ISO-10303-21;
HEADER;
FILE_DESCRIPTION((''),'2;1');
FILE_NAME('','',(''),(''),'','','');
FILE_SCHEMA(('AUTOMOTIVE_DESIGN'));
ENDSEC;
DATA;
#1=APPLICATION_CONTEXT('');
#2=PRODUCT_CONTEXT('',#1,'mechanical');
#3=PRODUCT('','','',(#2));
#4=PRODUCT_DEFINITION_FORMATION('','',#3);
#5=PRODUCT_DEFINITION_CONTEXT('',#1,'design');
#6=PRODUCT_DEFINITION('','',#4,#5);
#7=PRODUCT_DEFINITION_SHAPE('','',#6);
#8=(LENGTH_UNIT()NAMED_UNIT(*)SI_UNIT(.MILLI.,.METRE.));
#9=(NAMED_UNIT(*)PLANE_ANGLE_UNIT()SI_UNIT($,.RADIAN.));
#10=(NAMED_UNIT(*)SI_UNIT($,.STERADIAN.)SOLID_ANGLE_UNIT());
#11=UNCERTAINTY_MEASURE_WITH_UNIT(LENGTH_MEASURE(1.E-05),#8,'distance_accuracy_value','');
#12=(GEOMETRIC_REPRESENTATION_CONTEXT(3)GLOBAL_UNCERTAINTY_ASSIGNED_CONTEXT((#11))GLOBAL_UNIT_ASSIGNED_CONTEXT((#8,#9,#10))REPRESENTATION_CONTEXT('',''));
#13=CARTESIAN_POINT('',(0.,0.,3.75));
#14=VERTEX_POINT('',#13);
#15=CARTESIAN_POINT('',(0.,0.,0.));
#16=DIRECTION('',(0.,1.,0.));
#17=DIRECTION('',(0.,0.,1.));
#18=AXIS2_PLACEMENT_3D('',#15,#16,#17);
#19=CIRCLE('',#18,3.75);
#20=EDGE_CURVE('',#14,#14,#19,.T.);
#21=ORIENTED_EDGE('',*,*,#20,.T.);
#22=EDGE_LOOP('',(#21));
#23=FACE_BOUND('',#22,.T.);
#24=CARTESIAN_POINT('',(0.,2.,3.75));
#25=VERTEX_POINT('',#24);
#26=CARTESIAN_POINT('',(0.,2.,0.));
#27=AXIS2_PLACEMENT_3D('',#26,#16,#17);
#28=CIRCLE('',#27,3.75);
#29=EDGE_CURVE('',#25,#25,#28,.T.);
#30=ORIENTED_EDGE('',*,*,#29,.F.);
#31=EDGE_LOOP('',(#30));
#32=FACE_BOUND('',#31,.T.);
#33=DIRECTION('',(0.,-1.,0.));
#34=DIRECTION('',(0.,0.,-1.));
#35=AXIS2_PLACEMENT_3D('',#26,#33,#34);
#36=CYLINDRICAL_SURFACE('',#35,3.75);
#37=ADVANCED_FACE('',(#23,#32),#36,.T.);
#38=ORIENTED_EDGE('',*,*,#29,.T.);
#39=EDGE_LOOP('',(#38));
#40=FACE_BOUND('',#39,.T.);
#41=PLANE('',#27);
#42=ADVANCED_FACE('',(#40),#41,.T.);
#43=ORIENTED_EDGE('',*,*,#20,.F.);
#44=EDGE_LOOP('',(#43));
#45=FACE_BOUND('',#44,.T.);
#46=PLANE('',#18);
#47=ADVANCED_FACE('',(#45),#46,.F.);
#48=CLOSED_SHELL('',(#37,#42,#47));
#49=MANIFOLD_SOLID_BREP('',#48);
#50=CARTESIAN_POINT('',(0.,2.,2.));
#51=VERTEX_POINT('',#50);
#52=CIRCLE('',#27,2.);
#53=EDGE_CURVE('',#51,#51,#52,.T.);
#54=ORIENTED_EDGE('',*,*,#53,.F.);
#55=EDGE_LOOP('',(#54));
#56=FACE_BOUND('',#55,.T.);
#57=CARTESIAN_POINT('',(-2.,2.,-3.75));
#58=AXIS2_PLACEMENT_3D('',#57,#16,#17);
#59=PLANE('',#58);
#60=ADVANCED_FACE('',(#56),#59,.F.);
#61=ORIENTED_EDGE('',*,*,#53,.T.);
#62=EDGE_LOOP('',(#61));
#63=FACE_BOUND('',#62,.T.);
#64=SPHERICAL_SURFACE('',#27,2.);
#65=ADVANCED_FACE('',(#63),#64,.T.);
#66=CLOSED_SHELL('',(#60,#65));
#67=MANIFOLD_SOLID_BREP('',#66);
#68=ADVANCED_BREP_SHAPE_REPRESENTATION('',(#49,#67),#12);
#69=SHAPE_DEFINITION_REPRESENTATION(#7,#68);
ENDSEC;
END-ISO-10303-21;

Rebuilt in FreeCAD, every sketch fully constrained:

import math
import FreeCAD as App
import Part
import Sketcher
from FreeCAD import Vector
Q = App.Units.Quantity

doc = App.newDocument("Part")
body = doc.addObject("PartDesign::Body", "Body")

sketch1 = doc.addObject("Sketcher::SketchObject", "Sketch")
body.addObject(sketch1)
sketch1.AttachmentSupport = (doc.XZ_Plane, [""])
sketch1.MapMode = "FlatFace"
sketch1.addGeometry(Part.Circle(Vector(0, 0, 0), Vector(0, 0, 1), 3.8), False)
sketch1.addConstraint([
    Sketcher.Constraint("Coincident", 0, 3, -1, 1),
    Sketcher.Constraint("Diameter", 0, Q("7.5 mm")),
])
pad1 = doc.addObject("PartDesign::Pad", "Pad")
body.addObject(pad1)
pad1.Profile = sketch1
pad1.Length = 2
pad1.Reversed = True
body2 = doc.addObject("PartDesign::Body", "Body001")

sketch2 = doc.addObject("Sketcher::SketchObject", "Sketch001")
body2.addObject(sketch2)
sketch2.AttachmentSupport = (doc.getObject("XZ_Plane001"), [""])
sketch2.MapMode = "FlatFace"
sketch2.AttachmentOffset = App.Placement(Vector(0, 0, -2), App.Rotation())
sketch2.addGeometry([
    Part.LineSegment(Vector(-2, 0, 0), Vector(2, 0, 0)),
    Part.ArcOfCircle(Part.Circle(Vector(0, 0, 0), Vector(0, 0, 1), 2), math.radians(180), math.radians(360)),
], False)
sketch2.addConstraint([
    Sketcher.Constraint("Coincident", 0, 1, 1, 1),
    Sketcher.Constraint("Coincident", 1, 2, 0, 2),
    Sketcher.Constraint("Horizontal", 0),
    Sketcher.Constraint("Coincident", 1, 3, -1, 1),
    Sketcher.Constraint("PointOnObject", 0, 1, -1),
    Sketcher.Constraint("Radius", 1, Q("2 mm")),
])
revolution = doc.addObject("PartDesign::Revolution", "Revolution")
body2.addObject(revolution)
revolution.Profile = sketch2
revolution.ReferenceAxis = (sketch2, ["H_Axis"])
revolution.Angle = 360

sketch3 = doc.addObject("Sketcher::SketchObject", "Sketch002")
body2.addObject(sketch3)
sketch3.AttachmentSupport = (doc.getObject("XY_Plane001"), [""])
sketch3.MapMode = "FlatFace"
sketch3.addGeometry([
    Part.LineSegment(Vector(-2, 2, 0), Vector(-2, 0, 0)),
    Part.LineSegment(Vector(-2, 0, 0), Vector(2, 0, 0)),
    Part.LineSegment(Vector(2, 0, 0), Vector(2, 2, 0)),
    Part.LineSegment(Vector(2, 2, 0), Vector(-2, 2, 0)),
], False)
sketch3.addConstraint([
    Sketcher.Constraint("Coincident", 0, 2, 1, 1),
    Sketcher.Constraint("Coincident", 1, 2, 2, 1),
    Sketcher.Constraint("Coincident", 2, 2, 3, 1),
    Sketcher.Constraint("Coincident", 3, 2, 0, 1),
    Sketcher.Constraint("Vertical", 0),
    Sketcher.Constraint("Horizontal", 1),
    Sketcher.Constraint("Vertical", 2),
    Sketcher.Constraint("Horizontal", 3),
    Sketcher.Constraint("Symmetric", 0, 2, 1, 2, -1, 1),
    Sketcher.Constraint("DistanceX", 1, 1, 1, 2, Q("4 mm")),
    Sketcher.Constraint("DistanceY", 0, 2, 0, 1, Q("2 mm")),
])
pocket1 = doc.addObject("PartDesign::Pocket", "Pocket")
body2.addObject(pocket1)
pocket1.Profile = sketch3
pocket1.Type = "ThroughAll"
pocket1.Midplane = True

doc.recompute()
